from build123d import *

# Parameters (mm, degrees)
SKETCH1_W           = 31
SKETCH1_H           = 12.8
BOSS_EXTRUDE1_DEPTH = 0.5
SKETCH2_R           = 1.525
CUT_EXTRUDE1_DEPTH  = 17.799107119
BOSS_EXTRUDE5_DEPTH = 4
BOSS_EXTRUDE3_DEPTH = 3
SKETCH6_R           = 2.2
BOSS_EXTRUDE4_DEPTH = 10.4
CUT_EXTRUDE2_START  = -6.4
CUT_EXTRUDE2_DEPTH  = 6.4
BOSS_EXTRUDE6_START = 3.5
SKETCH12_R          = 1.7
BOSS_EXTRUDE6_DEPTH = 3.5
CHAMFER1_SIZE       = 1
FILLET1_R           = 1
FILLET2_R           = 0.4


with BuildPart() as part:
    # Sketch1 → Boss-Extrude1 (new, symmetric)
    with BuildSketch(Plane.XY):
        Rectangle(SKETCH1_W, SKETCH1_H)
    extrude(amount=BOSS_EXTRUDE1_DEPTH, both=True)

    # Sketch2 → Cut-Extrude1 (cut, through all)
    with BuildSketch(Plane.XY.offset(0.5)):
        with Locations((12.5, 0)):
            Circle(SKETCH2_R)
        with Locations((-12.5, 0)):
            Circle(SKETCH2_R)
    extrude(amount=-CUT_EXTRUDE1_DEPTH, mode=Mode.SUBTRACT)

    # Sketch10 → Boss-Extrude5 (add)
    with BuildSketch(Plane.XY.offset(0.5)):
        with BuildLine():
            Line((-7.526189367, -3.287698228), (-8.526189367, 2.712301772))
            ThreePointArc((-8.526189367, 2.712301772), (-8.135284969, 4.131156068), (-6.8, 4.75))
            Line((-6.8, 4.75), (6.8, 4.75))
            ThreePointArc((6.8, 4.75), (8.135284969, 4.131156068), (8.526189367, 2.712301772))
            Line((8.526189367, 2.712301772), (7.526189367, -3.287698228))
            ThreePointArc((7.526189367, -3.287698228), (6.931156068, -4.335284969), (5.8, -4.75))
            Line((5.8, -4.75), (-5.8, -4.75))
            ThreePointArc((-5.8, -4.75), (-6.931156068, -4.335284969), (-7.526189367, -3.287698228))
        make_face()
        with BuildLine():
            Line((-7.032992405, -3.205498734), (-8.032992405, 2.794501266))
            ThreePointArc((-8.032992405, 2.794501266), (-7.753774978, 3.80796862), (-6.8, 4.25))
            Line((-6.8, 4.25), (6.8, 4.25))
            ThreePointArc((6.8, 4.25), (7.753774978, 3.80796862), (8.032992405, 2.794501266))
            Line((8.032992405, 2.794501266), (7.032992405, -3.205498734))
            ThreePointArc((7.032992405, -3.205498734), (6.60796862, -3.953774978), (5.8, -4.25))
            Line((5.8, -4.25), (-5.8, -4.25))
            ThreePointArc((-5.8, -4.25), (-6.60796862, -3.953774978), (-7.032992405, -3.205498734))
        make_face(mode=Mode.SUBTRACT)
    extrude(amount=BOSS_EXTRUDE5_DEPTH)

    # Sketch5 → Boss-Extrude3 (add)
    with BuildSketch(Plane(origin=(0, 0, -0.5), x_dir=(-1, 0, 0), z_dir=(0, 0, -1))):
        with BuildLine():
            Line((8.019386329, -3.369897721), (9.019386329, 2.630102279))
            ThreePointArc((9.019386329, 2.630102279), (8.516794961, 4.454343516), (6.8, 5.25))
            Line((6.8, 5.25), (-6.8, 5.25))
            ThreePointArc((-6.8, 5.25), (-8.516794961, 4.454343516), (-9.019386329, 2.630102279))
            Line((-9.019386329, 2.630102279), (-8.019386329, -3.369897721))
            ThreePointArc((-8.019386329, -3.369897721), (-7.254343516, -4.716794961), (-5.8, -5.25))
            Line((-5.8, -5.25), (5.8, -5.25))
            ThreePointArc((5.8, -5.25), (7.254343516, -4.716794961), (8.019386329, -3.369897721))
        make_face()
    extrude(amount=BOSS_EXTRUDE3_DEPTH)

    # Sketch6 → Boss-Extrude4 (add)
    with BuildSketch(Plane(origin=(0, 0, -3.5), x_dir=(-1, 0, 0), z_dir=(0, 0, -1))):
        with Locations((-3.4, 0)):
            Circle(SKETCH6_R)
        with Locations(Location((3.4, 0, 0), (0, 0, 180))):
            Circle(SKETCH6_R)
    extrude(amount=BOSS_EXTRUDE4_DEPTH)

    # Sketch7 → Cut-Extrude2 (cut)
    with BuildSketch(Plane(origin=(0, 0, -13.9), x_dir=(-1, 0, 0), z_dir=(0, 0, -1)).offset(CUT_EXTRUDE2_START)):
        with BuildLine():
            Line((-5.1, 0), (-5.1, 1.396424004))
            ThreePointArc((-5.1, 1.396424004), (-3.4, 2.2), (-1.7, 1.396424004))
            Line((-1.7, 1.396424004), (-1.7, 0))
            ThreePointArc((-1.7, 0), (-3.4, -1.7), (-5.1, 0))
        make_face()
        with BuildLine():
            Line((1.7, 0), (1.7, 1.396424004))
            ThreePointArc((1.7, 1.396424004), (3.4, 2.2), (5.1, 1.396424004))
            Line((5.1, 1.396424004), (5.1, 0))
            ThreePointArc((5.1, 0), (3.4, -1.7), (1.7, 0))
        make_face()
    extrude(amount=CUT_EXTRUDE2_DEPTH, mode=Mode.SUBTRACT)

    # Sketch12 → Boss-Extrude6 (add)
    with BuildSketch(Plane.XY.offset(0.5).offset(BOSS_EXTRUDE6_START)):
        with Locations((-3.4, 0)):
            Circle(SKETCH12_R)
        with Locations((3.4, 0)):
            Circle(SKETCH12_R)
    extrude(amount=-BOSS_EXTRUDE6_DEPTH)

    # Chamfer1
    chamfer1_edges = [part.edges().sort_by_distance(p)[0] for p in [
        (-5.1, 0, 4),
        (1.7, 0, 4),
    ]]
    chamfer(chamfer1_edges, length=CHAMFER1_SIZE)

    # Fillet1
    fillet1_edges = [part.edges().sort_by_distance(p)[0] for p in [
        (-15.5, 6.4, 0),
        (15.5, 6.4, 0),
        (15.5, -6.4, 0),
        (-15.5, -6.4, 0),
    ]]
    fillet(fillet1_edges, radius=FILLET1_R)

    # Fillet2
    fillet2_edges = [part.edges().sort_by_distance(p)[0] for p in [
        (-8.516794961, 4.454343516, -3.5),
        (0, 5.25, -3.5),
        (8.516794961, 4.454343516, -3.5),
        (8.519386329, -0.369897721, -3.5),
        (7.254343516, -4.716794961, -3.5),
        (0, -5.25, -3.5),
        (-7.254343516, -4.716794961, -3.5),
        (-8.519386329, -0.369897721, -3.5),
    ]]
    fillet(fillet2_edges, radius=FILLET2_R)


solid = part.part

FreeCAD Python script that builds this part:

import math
import FreeCAD as App
import Part
import Sketcher

V = App.Vector


def edges_at(feature, points):
    """Names of the edges that pass closest to the given points."""
    edges = feature.Shape.Edges
    near = lambda p: min(range(len(edges)), key=lambda i: edges[i].distToShape(Part.Vertex(*p))[0])
    return sorted({f"Edge{near(p) + 1}" for p in points})


def add_polygon(sketch, points):
    """Adds a closed chain of lines whose ends are joined by coincident constraints."""
    first, n = sketch.GeometryCount, len(points)
    for a, b in zip(points, points[1:] + points[:1]):
        sketch.addGeometry(Part.LineSegment(App.Vector(*a, 0), App.Vector(*b, 0)), False)
    for i in range(n):
        sketch.addConstraint(Sketcher.Constraint("Coincident", first + i, 2, first + (i + 1) % n, 1))

doc = App.newDocument("Part")
body = doc.addObject("PartDesign::Body", "Body")

sketch1 = body.newObject("Sketcher::SketchObject", "Sketch")
sketch1.AttachmentSupport = (doc.getObject("XY_Plane"), [""])
sketch1.MapMode = "FlatFace"
add_polygon(sketch1, [(-16, 6), (-16, -6), (16, -6), (16, 6)])
sketch1.addConstraint([
    Sketcher.Constraint("Vertical", 0),
    Sketcher.Constraint("Horizontal", 1),
    Sketcher.Constraint("Vertical", 2),
    Sketcher.Constraint("Horizontal", 3),
    Sketcher.Constraint("Symmetric", 0, 2, 2, 2, -1, 1),
    Sketcher.Constraint("DistanceX", 1, 1, 1, 2, 31.0),
    Sketcher.Constraint("DistanceY", 0, 2, 0, 1, 12.8),
])
pad1 = body.newObject("PartDesign::Pad", "Pad")
pad1.Profile = sketch1
pad1.Length = 1
pad1.Midplane = True

sketch2 = body.newObject("Sketcher::SketchObject", "Sketch001")
sketch2.AttachmentSupport = (doc.getObject("XY_Plane"), [""])
sketch2.MapMode = "FlatFace"
sketch2.AttachmentOffset = App.Placement(V(0, 0, 0.5), App.Rotation())
sketch2.addGeometry([
    Part.Circle(V(12.5, 0, 0), V(0, 0, 1), 1.5),
    Part.Circle(V(-12.5, 0, 0), V(0, 0, 1), 1.5),
], False)
sketch2.addConstraint([
    Sketcher.Constraint("Equal", 0, 1),
    Sketcher.Constraint("Symmetric", 0, 3, 1, 3, -1, 1),
    Sketcher.Constraint("PointOnObject", 0, 3, -1),
    Sketcher.Constraint("Diameter", 0, 3.05),
    Sketcher.Constraint("DistanceX", 1, 3, 0, 3, 25.0),
])
pocket1 = body.newObject("PartDesign::Pocket", "Pocket")
pocket1.Profile = sketch2
pocket1.Type = "ThroughAll"

sketch3 = body.newObject("Sketcher::SketchObject", "Sketch002")
sketch3.AttachmentSupport = (doc.getObject("XY_Plane"), [""])
sketch3.MapMode = "FlatFace"
sketch3.AttachmentOffset = App.Placement(V(0, 0, 0.5), App.Rotation())
sketch3.addGeometry([
    Part.LineSegment(V(-8.5, 2.7, 0), V(-7.5, -3.3, 0)),
    Part.ArcOfCircle(Part.Circle(V(-5.8, -3, 0), V(0, 0, 1), 1.8), math.radians(-171), math.radians(-90)),
    Part.LineSegment(V(-5.8, -4.8, 0), V(5.8, -4.8, 0)),
    Part.ArcOfCircle(Part.Circle(V(5.8, -3, 0), V(0, 0, 1), 1.8), math.radians(-90), math.radians(-9)),
    Part.LineSegment(V(7.5, -3.3, 0), V(8.5, 2.7, 0)),
    Part.ArcOfCircle(Part.Circle(V(6.8, 3, 0), V(0, 0, 1), 1.8), math.radians(-9), math.radians(90)),
    Part.LineSegment(V(6.8, 4.8, 0), V(-6.8, 4.8, 0)),
    Part.ArcOfCircle(Part.Circle(V(-6.8, 3, 0), V(0, 0, 1), 1.8), math.radians(90), math.radians(189)),
    Part.LineSegment(V(-7, -3.2, 0), V(-8, 2.8, 0)),
    Part.ArcOfCircle(Part.Circle(V(-6.8, 3, 0), V(0, 0, 1), 1.3), math.radians(90), math.radians(189)),
    Part.LineSegment(V(-6.8, 4.2, 0), V(6.8, 4.2, 0)),
    Part.ArcOfCircle(Part.Circle(V(6.8, 3, 0), V(0, 0, 1), 1.3), math.radians(-9), math.radians(90)),
    Part.LineSegment(V(8, 2.8, 0), V(7, -3.2, 0)),
    Part.ArcOfCircle(Part.Circle(V(5.8, -3, 0), V(0, 0, 1), 1.3), math.radians(-90), math.radians(-9)),
    Part.LineSegment(V(5.8, -4.2, 0), V(-5.8, -4.2, 0)),
    Part.ArcOfCircle(Part.Circle(V(-5.8, -3, 0), V(0, 0, 1), 1.3), math.radians(-171), math.radians(-90)),
], False)
sketch3.addConstraint([
    Sketcher.Constraint("Tangent", 0, 2, 1, 1),
    Sketcher.Constraint("Tangent", 1, 2, 2, 1),
    Sketcher.Constraint("Tangent", 2, 2, 3, 1),
    Sketcher.Constraint("Tangent", 3, 2, 4, 1),
    Sketcher.Constraint("Tangent", 4, 2, 5, 1),
    Sketcher.Constraint("Tangent", 5, 2, 6, 1),
    Sketcher.Constraint("Tangent", 6, 2, 7, 1),
    Sketcher.Constraint("Tangent", 7, 2, 0, 1),
    Sketcher.Constraint("Tangent", 8, 2, 9, 2),
    Sketcher.Constraint("Tangent", 9, 1, 10, 1),
    Sketcher.Constraint("Tangent", 10, 2, 11, 2),
    Sketcher.Constraint("Tangent", 11, 1, 12, 1),
    Sketcher.Constraint("Tangent", 12, 2, 13, 2),
    Sketcher.Constraint("Tangent", 13, 1, 14, 1),
    Sketcher.Constraint("Tangent", 14, 2, 15, 2),
    Sketcher.Constraint("Tangent", 15, 1, 8, 1),
    Sketcher.Constraint("Horizontal", 2),
    Sketcher.Constraint("Horizontal", 6),
    Sketcher.Constraint("Horizontal", 10),
    Sketcher.Constraint("Horizontal", 14),
    Sketcher.Constraint("Coincident", 9, 3, 7, 3),
    Sketcher.Constraint("Coincident", 11, 3, 5, 3),
    Sketcher.Constraint("Coincident", 13, 3, 3, 3),
    Sketcher.Constraint("Coincident", 15, 3, 1, 3),
    Sketcher.Constraint("Equal", 1, 3),
    Sketcher.Constraint("Equal", 3, 5),
    Sketcher.Constraint("Equal", 5, 7),
    Sketcher.Constraint("Equal", 11, 13),
    Sketcher.Constraint("Symmetric", 0, 2, 3, 2, -2),
    Sketcher.Constraint("Radius", 1, 1.75),
    Sketcher.Constraint("Radius", 9, 1.25),
    Sketcher.Constraint("DistanceX", 2, 1, 2, 2, 11.6),
    Sketcher.Constraint("DistanceX", 6, 2, 6, 1, 13.6),
    Sketcher.Constraint("DistanceY", 1, 3, -1, 1, 3.0),
    Sketcher.Constraint("DistanceY", -1, 1, 5, 3, 3.0),
])
pad2 = body.newObject("PartDesign::Pad", "Pad001")
pad2.Profile = sketch3
pad2.Length = 4

sketch4 = body.newObject("Sketcher::SketchObject", "Sketch003")
sketch4.AttachmentSupport = (doc.getObject("XY_Plane"), [""])
sketch4.MapMode = "FlatFace"
sketch4.AttachmentOffset = App.Placement(V(0, 0, -0.5), App.Rotation())
sketch4.addGeometry([
    Part.LineSegment(V(-8, -3.4, 0), V(-9, 2.6, 0)),
    Part.ArcOfCircle(Part.Circle(V(-6.8, 3, 0), V(0, 0, 1), 2.2), math.radians(90), math.radians(189)),
    Part.LineSegment(V(-6.8, 5.2, 0), V(6.8, 5.2, 0)),
    Part.ArcOfCircle(Part.Circle(V(6.8, 3, 0), V(0, 0, 1), 2.2), math.radians(-9), math.radians(90)),
    Part.LineSegment(V(9, 2.6, 0), V(8, -3.4, 0)),
    Part.ArcOfCircle(Part.Circle(V(5.8, -3, 0), V(0, 0, 1), 2.2), math.radians(-90), math.radians(-9)),
    Part.LineSegment(V(5.8, -5.2, 0), V(-5.8, -5.2, 0)),
    Part.ArcOfCircle(Part.Circle(V(-5.8, -3, 0), V(0, 0, 1), 2.2), math.radians(-171), math.radians(-90)),
], False)
sketch4.addConstraint([
    Sketcher.Constraint("Tangent", 0, 2, 1, 2),
    Sketcher.Constraint("Tangent", 1, 1, 2, 1),
    Sketcher.Constraint("Tangent", 2, 2, 3, 2),
    Sketcher.Constraint("Tangent", 3, 1, 4, 1),
    Sketcher.Constraint("Tangent", 4, 2, 5, 2),
    Sketcher.Constraint("Tangent", 5, 1, 6, 1),
    Sketcher.Constraint("Tangent", 6, 2, 7, 2),
    Sketcher.Constraint("Tangent", 7, 1, 0, 1),
    Sketcher.Constraint("Horizontal", 2),
    Sketcher.Constraint("Horizontal", 6),
    Sketcher.Constraint("Equal", 1, 3),
    Sketcher.Constraint("Equal", 3, 5),
    Sketcher.Constraint("Equal", 5, 7),
    Sketcher.Constraint("Symmetric", 0, 2, 3, 1, -2),
    Sketcher.Constraint("Radius", 1, 2.25),
    Sketcher.Constraint("DistanceX", 2, 1, 2, 2, 13.6),
    Sketcher.Constraint("DistanceX", 6, 2, 6, 1, 11.6),
    Sketcher.Constraint("DistanceY", -1, 1, 1, 3, 3.0),
    Sketcher.Constraint("DistanceY", 5, 3, -1, 1, 3.0),
])
pad3 = body.newObject("PartDesign::Pad", "Pad002")
pad3.Profile = sketch4
pad3.Length = 3
pad3.Reversed = True

sketch5 = body.newObject("Sketcher::SketchObject", "Sketch004")
sketch5.AttachmentSupport = (doc.getObject("XY_Plane"), [""])
sketch5.MapMode = "FlatFace"
sketch5.AttachmentOffset = App.Placement(V(0, 0, -3.5), App.Rotation())
sketch5.addGeometry([
    Part.Circle(V(3.4, 0, 0), V(0, 0, 1), 2.2),
    Part.Circle(V(-3.4, 0, 0), V(0, 0, 1), 2.2),
], False)
sketch5.addConstraint([
    Sketcher.Constraint("Equal", 0, 1),
    Sketcher.Constraint("Symmetric", 0, 3, 1, 3, -1, 1),
    Sketcher.Constraint("PointOnObject", 0, 3, -1),
    Sketcher.Constraint("Diameter", 0, 4.4),
    Sketcher.Constraint("DistanceX", -1, 1, 0, 3, 3.4),
])
pad4 = body.newObject("PartDesign::Pad", "Pad003")
pad4.Profile = sketch5
pad4.Length = 10.4
pad4.Reversed = True

sketch6 = body.newObject("Sketcher::SketchObject", "Sketch005")
sketch6.AttachmentSupport = (doc.getObject("XY_Plane"), [""])
sketch6.MapMode = "FlatFace"
sketch6.AttachmentOffset = App.Placement(V(0, 0, -7.5), App.Rotation())
sketch6.addGeometry([
    Part.LineSegment(V(5.1, 1.4, 0), V(5.1, 0, 0)),
    Part.ArcOfCircle(Part.Circle(V(3.4, 0, 0), V(0, 0, 1), 1.7), math.radians(180), math.radians(360)),
    Part.LineSegment(V(1.7, 0, 0), V(1.7, 1.4, 0)),
    Part.ArcOfCircle(Part.Circle(V(3.4, 0, 0), V(0, 0, 1), 2.2), math.radians(39), math.radians(141)),
    Part.LineSegment(V(-1.7, 1.4, 0), V(-1.7, 0, 0)),
    Part.ArcOfCircle(Part.Circle(V(-3.4, 0, 0), V(0, 0, 1), 1.7), math.radians(180), math.radians(360)),
    Part.LineSegment(V(-5.1, 0, 0), V(-5.1, 1.4, 0)),
    Part.ArcOfCircle(Part.Circle(V(-3.4, 0, 0), V(0, 0, 1), 2.2), math.radians(39), math.radians(141)),
], False)
sketch6.addConstraint([
    Sketcher.Constraint("Tangent", 0, 2, 1, 2),
    Sketcher.Constraint("Tangent", 1, 1, 2, 1),
    Sketcher.Constraint("Coincident", 2, 2, 3, 2),
    Sketcher.Constraint("Coincident", 3, 1, 0, 1),
    Sketcher.Constraint("Tangent", 4, 2, 5, 2),
    Sketcher.Constraint("Tangent", 5, 1, 6, 1),
    Sketcher.Constraint("Coincident", 6, 2, 7, 2),
    Sketcher.Constraint("Coincident", 7, 1, 4, 1),
    Sketcher.Constraint("Vertical", 0),
    Sketcher.Constraint("Vertical", 2),
    Sketcher.Constraint("Vertical", 4),
    Sketcher.Constraint("Vertical", 6),
    Sketcher.Constraint("Coincident", 3, 3, 1, 3),
    Sketcher.Constraint("Coincident", 7, 3, 5, 3),
    Sketcher.Constraint("Equal", 1, 5),
    Sketcher.Constraint("Equal", 3, 7),
    Sketcher.Constraint("Symmetric", 1, 3, 5, 3, -1, 1),
    Sketcher.Constraint("PointOnObject", 1, 3, -1),
    Sketcher.Constraint("Radius", 1, 1.7),
    Sketcher.Constraint("Radius", 3, 2.2),
    Sketcher.Constraint("DistanceX", -1, 1, 1, 3, 3.4),
])
pocket2 = body.newObject("PartDesign::Pocket", "Pocket001")
pocket2.Profile = sketch6
pocket2.Length = 6.4

sketch7 = body.newObject("Sketcher::SketchObject", "Sketch006")
sketch7.AttachmentSupport = (doc.getObject("XY_Plane"), [""])
sketch7.MapMode = "FlatFace"
sketch7.AttachmentOffset = App.Placement(V(0, 0, 4), App.Rotation())
sketch7.addGeometry([
    Part.Circle(V(-3.4, 0, 0), V(0, 0, 1), 1.7),
    Part.Circle(V(3.4, 0, 0), V(0, 0, 1), 1.7),
], False)
sketch7.addConstraint([
    Sketcher.Constraint("Equal", 0, 1),
    Sketcher.Constraint("Symmetric", 0, 3, 1, 3, -1, 1),
    Sketcher.Constraint("PointOnObject", 0, 3, -1),
    Sketcher.Constraint("Diameter", 0, 3.4),
    Sketcher.Constraint("DistanceX", 0, 3, -1, 1, 3.4),
])
pad5 = body.newObject("PartDesign::Pad", "Pad004")
pad5.Profile = sketch7
pad5.Length = 3.5
pad5.Reversed = True
doc.recompute()

chamfer = body.newObject("PartDesign::Chamfer", "Chamfer")
chamfer.Base = (pad5, edges_at(pad5, [(-5.1, 0, 4), (1.7, 0, 4)]))
chamfer.Size = 1
doc.recompute()

fillet = body.newObject("PartDesign::Fillet", "Fillet")
fillet.Base = (chamfer, edges_at(chamfer, [
    (-15.5, 6.4, 0),
    (15.5, 6.4, 0),
    (15.5, -6.4, 0),
    (-15.5, -6.4, 0),
]))
fillet.Radius = 1
doc.recompute()

fillet2 = body.newObject("PartDesign::Fillet", "Fillet001")
fillet2.Base = (fillet, edges_at(fillet, [
    (-8.517, 4.454, -3.5),
    (0, 5.25, -3.5),
    (8.517, 4.454, -3.5),
    (8.519, -0.37, -3.5),
    (7.254, -4.717, -3.5),
    (0, -5.25, -3.5),
    (-7.254, -4.717, -3.5),
    (-8.519, -0.37, -3.5),
]))
fillet2.Radius = 0.4

doc.recompute()
